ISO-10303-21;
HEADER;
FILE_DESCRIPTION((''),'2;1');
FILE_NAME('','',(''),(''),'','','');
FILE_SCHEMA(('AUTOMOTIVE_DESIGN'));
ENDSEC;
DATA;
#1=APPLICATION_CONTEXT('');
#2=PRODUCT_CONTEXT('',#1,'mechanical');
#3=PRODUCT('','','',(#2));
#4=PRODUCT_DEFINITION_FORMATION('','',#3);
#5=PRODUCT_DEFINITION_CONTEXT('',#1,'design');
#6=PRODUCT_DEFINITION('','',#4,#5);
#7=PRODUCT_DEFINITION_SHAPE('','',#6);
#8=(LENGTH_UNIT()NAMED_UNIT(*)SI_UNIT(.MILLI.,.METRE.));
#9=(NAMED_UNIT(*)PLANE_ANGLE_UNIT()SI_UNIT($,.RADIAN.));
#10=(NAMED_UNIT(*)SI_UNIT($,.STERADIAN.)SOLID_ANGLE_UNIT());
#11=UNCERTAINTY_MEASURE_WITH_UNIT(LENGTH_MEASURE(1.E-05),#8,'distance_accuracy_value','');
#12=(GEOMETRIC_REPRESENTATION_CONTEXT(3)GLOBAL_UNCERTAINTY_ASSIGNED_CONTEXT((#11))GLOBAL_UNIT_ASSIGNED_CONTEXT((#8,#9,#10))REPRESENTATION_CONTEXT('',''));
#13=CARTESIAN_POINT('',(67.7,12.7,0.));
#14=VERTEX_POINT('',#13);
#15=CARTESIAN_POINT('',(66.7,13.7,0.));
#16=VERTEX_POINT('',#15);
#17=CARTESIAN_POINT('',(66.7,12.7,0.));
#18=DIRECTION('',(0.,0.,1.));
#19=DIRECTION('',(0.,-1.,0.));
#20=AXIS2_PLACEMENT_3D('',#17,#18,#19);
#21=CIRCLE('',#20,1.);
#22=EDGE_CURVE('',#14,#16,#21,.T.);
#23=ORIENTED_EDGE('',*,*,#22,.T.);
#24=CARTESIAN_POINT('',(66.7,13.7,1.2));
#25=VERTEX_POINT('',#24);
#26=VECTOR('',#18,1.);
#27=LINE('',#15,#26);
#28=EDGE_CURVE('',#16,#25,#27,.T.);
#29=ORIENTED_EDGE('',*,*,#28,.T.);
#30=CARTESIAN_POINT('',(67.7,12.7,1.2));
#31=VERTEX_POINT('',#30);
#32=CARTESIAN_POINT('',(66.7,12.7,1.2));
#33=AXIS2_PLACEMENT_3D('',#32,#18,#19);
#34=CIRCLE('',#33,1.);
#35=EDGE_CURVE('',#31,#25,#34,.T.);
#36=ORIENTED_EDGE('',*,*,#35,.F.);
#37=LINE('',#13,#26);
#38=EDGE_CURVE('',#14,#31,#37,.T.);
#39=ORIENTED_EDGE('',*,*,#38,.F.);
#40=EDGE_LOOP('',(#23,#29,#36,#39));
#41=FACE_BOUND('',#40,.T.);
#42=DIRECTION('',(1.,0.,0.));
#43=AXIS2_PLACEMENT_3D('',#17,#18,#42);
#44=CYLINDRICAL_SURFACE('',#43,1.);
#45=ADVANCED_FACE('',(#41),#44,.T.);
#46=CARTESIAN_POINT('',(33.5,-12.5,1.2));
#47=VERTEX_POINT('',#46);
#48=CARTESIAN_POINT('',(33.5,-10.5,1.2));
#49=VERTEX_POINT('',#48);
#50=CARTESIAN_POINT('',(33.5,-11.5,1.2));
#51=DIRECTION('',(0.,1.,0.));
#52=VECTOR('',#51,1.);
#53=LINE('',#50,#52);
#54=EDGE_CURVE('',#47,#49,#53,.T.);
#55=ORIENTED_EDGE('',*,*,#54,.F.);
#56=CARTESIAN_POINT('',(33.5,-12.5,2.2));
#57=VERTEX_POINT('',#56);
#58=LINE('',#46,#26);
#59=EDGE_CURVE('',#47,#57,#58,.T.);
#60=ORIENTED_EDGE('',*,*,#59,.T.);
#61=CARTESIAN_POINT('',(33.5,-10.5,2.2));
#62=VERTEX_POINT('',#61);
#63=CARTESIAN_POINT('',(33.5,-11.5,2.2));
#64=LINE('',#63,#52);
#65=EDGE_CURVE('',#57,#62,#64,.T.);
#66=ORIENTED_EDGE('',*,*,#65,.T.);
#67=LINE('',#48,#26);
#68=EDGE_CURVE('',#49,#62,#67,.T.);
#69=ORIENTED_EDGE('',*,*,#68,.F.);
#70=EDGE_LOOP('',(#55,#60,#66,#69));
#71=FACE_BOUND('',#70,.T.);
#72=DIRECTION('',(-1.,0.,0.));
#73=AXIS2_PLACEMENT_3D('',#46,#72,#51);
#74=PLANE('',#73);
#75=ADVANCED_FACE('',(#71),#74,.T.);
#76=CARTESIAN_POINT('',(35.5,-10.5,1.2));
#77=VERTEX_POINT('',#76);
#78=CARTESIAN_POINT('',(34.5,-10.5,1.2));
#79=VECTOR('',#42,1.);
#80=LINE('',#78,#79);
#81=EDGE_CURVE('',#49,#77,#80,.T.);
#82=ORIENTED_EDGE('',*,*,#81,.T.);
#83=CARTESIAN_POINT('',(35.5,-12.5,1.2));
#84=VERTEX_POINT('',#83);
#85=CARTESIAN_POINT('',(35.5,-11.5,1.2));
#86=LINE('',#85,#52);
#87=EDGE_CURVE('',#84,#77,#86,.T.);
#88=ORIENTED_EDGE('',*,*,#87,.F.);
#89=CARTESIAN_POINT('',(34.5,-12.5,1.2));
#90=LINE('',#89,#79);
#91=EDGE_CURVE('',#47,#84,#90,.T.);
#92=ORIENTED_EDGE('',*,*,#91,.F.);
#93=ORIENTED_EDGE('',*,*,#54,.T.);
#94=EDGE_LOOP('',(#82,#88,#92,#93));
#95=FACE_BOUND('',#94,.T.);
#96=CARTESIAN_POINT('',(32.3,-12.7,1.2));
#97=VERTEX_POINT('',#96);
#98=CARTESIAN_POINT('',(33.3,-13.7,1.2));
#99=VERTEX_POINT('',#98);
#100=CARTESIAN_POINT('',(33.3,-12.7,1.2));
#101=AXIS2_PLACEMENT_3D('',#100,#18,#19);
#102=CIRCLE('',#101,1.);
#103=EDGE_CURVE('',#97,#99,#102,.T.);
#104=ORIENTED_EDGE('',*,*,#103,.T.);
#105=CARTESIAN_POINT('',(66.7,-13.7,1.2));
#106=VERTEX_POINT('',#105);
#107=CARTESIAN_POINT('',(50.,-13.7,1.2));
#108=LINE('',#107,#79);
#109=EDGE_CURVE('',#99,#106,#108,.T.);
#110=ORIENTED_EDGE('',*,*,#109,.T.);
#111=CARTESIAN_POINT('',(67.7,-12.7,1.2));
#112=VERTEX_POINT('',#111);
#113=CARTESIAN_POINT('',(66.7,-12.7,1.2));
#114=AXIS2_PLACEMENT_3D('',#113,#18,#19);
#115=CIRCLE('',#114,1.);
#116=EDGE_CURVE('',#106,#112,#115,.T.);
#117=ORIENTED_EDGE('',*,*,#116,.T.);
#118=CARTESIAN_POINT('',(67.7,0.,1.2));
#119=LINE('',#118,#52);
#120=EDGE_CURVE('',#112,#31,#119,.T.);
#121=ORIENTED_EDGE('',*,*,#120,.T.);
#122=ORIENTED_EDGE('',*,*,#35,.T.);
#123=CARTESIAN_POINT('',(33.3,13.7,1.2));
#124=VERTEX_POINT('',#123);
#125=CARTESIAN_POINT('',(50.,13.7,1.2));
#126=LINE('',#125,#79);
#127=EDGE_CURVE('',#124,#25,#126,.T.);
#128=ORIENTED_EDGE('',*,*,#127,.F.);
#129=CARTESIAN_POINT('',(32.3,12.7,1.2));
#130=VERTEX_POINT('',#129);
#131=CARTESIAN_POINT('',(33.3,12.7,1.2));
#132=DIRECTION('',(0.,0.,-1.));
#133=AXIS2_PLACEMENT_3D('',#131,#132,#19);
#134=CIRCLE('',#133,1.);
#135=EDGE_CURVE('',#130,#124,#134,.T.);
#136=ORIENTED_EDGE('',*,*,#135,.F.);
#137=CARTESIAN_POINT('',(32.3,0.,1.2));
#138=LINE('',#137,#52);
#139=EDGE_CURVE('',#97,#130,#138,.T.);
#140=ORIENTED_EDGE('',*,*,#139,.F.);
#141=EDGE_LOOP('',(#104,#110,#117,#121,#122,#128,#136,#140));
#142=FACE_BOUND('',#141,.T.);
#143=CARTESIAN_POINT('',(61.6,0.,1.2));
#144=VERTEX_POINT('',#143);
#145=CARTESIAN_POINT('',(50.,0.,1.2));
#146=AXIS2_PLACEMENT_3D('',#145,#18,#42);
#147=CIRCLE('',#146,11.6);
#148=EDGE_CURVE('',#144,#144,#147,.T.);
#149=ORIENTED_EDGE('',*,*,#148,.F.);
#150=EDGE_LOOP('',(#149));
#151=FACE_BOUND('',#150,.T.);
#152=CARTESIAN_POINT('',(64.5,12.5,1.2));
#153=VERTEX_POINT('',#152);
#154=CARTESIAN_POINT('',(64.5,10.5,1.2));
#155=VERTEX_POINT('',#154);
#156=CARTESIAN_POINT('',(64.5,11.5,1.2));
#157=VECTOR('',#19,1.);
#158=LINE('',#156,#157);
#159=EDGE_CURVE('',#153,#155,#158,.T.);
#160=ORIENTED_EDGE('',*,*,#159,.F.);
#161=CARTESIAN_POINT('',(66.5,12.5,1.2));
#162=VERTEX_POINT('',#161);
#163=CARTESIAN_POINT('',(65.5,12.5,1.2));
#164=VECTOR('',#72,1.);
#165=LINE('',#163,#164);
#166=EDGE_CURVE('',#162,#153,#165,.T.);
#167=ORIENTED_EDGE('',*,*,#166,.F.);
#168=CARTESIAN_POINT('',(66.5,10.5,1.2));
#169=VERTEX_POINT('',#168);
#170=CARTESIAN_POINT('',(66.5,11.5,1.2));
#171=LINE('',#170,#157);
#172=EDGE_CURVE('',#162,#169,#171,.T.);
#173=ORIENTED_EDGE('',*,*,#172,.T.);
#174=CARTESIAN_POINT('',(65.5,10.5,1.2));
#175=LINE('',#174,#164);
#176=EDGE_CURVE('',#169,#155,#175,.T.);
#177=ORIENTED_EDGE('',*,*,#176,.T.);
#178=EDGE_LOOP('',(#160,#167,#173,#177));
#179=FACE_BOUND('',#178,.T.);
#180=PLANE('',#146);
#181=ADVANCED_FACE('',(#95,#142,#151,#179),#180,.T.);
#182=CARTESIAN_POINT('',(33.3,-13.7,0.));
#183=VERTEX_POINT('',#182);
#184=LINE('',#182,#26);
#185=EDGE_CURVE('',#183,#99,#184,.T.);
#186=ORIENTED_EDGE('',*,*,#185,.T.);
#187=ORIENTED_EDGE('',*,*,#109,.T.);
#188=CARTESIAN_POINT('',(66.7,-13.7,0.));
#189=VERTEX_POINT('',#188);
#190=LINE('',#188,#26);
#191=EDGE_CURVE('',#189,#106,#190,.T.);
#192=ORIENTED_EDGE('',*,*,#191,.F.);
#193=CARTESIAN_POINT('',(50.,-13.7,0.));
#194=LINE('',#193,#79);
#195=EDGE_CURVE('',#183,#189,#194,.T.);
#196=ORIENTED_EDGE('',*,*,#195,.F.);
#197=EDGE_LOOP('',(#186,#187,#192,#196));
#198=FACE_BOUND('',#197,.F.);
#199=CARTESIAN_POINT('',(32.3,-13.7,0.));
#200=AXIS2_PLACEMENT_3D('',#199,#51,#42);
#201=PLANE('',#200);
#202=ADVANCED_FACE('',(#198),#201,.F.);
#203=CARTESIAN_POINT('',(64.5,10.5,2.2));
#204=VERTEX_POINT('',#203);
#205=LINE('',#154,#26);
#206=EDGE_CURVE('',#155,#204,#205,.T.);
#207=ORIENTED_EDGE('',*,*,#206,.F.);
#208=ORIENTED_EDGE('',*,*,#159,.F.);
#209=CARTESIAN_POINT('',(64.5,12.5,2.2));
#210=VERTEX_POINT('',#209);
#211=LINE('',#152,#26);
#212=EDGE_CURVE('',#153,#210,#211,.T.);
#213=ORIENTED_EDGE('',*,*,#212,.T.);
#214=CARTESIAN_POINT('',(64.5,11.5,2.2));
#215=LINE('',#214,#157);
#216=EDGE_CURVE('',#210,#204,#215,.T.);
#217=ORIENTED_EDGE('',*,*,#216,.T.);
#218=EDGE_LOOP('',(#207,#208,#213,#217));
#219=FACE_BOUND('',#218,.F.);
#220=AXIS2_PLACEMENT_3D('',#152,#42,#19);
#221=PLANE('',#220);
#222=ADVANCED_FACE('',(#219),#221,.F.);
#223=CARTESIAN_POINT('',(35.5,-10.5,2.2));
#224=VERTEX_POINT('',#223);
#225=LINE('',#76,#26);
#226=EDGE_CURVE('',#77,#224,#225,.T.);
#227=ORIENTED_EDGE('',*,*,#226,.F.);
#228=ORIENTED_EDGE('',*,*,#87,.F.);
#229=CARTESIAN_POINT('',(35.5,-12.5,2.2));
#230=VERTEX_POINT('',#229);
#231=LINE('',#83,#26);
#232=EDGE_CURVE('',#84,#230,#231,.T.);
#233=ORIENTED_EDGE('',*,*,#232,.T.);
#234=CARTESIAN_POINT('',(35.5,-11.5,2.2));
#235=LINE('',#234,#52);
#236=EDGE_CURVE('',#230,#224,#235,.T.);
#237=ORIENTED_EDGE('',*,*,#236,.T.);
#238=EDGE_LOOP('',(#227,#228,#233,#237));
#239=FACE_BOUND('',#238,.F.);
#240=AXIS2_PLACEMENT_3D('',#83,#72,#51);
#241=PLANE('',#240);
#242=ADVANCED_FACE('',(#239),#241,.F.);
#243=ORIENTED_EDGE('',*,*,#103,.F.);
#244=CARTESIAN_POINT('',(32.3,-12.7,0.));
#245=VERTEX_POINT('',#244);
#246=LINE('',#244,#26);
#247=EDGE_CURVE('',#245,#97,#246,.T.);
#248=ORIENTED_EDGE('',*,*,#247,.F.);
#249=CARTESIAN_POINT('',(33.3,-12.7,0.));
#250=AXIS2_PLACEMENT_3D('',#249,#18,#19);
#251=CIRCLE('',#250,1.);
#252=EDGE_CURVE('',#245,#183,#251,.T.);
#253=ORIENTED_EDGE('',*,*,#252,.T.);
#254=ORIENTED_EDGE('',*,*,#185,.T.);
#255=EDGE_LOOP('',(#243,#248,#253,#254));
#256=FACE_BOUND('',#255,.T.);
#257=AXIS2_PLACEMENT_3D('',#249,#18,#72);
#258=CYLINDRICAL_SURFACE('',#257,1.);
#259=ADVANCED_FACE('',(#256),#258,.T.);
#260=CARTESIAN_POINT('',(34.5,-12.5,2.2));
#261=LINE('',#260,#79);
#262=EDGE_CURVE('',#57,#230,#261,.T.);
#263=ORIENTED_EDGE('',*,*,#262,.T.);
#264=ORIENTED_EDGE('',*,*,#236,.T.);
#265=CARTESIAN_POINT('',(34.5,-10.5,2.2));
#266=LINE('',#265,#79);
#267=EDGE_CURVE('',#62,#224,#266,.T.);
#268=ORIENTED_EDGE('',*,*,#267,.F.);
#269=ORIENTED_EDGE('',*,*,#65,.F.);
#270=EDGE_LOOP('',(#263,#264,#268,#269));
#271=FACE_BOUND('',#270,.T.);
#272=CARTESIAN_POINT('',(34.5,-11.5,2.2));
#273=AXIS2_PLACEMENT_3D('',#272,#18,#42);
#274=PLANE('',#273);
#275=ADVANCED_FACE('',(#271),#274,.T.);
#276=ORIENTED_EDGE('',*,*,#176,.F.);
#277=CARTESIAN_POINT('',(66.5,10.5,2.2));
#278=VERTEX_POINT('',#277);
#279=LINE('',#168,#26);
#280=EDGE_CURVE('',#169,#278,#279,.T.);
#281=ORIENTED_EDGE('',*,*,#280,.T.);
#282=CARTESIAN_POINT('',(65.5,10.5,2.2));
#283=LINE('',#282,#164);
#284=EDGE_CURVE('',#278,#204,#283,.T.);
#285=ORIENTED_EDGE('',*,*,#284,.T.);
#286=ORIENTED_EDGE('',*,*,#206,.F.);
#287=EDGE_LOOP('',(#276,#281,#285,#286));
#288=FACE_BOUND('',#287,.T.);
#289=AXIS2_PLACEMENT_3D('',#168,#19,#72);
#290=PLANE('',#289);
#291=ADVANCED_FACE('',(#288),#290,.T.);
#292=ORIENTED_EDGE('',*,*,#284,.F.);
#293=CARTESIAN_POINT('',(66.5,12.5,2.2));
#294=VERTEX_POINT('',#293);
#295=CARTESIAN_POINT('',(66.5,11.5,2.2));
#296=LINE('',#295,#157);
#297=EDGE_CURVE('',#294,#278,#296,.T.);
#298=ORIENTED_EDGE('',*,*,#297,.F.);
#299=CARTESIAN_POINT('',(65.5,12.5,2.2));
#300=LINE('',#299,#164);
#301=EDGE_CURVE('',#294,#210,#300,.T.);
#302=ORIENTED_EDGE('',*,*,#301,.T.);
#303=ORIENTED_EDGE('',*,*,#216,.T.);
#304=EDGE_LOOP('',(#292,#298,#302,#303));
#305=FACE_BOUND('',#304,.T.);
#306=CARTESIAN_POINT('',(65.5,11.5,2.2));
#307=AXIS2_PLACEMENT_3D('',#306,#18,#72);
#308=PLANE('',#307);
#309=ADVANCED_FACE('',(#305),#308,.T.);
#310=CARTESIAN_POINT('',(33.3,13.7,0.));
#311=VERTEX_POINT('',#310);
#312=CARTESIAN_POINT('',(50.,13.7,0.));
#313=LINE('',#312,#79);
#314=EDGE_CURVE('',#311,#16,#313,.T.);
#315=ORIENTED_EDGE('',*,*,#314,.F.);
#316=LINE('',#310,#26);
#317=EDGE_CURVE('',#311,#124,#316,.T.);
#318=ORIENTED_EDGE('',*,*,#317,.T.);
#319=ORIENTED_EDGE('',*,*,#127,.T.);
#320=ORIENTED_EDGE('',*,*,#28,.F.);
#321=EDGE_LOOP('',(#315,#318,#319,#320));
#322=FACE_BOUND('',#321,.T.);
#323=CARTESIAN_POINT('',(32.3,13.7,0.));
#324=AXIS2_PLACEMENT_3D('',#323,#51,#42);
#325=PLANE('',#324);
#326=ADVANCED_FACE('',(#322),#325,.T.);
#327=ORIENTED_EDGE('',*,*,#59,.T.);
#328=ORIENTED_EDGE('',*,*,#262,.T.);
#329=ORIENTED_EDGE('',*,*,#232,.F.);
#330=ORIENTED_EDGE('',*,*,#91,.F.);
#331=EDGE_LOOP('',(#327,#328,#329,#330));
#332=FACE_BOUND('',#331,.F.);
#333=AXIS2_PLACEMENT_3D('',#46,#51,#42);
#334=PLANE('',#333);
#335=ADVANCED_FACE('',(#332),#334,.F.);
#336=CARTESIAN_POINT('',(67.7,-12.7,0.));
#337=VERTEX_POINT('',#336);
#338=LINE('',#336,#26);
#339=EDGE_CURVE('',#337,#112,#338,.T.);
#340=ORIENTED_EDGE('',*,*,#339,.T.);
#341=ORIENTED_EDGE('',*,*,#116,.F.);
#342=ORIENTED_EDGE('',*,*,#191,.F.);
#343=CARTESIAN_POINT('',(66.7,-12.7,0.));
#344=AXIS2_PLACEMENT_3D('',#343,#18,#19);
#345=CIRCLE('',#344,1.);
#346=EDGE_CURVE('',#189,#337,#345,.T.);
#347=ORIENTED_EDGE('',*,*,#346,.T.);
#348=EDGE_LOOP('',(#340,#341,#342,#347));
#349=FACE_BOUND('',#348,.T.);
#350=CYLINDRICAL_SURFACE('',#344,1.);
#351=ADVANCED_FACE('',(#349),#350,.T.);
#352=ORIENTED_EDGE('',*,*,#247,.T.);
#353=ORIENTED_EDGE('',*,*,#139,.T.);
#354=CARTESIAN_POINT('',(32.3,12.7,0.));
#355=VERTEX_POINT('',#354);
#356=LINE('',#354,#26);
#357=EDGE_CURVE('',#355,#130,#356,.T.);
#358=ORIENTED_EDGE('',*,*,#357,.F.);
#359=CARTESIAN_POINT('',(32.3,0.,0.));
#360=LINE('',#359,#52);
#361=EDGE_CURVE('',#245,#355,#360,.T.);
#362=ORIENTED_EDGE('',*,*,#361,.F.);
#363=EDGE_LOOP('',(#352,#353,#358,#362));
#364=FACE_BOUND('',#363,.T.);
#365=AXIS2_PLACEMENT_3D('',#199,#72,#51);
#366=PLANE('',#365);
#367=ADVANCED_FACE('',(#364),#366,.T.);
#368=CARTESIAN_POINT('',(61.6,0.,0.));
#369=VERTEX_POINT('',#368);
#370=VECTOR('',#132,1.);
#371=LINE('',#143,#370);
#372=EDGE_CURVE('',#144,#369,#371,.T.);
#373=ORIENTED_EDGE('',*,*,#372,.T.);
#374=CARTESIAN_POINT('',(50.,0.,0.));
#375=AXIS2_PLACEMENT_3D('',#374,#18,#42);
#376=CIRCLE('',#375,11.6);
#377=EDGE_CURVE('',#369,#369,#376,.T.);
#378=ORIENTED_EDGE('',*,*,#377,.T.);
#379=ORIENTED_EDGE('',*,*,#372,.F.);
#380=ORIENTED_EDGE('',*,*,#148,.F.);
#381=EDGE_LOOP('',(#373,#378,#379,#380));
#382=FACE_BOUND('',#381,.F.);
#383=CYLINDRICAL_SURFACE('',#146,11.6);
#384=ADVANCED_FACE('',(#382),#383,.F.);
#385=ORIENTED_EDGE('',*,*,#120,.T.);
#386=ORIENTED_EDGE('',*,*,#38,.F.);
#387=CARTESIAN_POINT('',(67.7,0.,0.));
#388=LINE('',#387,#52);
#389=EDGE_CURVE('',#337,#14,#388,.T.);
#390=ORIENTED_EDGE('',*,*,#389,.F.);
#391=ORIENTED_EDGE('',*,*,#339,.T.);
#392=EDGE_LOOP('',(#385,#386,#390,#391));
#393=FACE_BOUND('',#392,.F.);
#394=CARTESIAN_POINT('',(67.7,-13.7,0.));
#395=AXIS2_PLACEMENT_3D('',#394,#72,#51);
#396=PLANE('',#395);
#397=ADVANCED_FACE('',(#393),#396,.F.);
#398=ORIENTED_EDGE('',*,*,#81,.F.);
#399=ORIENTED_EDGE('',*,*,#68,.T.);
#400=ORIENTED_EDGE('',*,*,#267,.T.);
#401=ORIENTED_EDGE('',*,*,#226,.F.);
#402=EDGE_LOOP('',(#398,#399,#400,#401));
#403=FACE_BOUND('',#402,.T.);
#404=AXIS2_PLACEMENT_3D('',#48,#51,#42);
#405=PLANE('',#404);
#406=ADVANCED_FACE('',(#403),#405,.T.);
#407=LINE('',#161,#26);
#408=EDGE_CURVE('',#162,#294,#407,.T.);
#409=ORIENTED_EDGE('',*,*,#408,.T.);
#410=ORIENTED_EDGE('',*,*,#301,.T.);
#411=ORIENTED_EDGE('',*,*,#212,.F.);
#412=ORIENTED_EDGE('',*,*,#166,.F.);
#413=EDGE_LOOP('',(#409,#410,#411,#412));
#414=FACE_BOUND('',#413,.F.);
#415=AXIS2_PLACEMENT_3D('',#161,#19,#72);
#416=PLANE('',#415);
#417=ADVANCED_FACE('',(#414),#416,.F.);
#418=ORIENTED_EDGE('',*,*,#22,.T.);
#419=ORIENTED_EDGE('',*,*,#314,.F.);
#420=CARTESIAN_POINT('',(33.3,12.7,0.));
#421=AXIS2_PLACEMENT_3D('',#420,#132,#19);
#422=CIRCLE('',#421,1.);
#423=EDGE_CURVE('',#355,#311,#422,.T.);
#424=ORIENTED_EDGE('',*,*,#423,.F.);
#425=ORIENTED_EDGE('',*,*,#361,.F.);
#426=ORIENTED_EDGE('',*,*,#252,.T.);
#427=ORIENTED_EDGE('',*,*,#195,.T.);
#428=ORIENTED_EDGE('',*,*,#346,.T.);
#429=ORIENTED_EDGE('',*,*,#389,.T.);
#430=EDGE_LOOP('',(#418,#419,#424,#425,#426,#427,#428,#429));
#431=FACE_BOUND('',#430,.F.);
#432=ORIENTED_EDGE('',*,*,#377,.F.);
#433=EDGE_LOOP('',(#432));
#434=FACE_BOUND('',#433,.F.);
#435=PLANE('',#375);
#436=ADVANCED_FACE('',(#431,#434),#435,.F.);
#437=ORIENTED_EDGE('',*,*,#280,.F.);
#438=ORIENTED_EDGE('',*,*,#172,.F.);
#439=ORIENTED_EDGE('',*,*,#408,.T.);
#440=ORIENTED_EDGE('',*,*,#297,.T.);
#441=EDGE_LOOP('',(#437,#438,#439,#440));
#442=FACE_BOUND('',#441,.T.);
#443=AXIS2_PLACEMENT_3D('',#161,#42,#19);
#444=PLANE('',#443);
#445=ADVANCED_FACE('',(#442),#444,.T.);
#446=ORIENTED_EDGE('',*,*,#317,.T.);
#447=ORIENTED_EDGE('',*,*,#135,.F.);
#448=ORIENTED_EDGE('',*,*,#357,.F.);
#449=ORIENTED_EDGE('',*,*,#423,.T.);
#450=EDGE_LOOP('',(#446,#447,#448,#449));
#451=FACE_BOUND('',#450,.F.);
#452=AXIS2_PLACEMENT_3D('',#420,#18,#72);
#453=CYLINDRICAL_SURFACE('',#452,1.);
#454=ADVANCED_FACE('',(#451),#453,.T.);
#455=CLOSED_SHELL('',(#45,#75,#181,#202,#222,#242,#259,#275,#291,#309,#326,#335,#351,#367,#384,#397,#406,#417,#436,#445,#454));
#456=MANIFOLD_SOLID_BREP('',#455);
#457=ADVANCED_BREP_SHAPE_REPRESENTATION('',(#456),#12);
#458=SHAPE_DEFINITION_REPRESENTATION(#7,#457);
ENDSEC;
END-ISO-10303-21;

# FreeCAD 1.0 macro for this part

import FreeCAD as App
import Part
import Sketcher
from FreeCAD import Vector


def edges_at(feature, points):
    """Names of the edges that pass closest to the given points."""
    edges = feature.Shape.Edges
    near = lambda p: min(range(len(edges)), key=lambda i: edges[i].distToShape(Part.Vertex(*p))[0])
    return sorted({f"Edge{near(p) + 1}" for p in points})


def add_polygon(sketch, points):
    """Adds a closed chain of lines whose ends are joined by coincident constraints."""
    first, n = sketch.GeometryCount, len(points)
    for a, b in zip(points, points[1:] + points[:1]):
        sketch.addGeometry(Part.LineSegment(App.Vector(*a, 0), App.Vector(*b, 0)), False)
    for i in range(n):
        sketch.addConstraint(Sketcher.Constraint("Coincident", first + i, 2, first + (i + 1) % n, 1))

doc = App.newDocument("Part")
body = doc.addObject("PartDesign::Body", "Body")

sketch1 = body.newObject("Sketcher::SketchObject", "Sketch")
sketch1.AttachmentSupport = (doc.getObject("XY_Plane"), [""])
sketch1.MapMode = "FlatFace"
add_polygon(sketch1, [(-17.7, 13.7), (-17.7, -13.7), (17.7, -13.7), (17.7, 13.7)])
sketch1.addConstraint([
    Sketcher.Constraint("Vertical", 0),
    Sketcher.Constraint("Horizontal", 1),
    Sketcher.Constraint("Vertical", 2),
    Sketcher.Constraint("Horizontal", 3),
    Sketcher.Constraint("Symmetric", 0, 2, 2, 2, -1, 1),
    Sketcher.Constraint("DistanceX", 1, 1, 1, 2, 35.4),
    Sketcher.Constraint("DistanceY", 0, 2, 0, 1, 27.4),
])
pad1 = body.newObject("PartDesign::Pad", "Pad")
pad1.Profile = sketch1
pad1.Length = 1.2
doc.recompute()

fillet = body.newObject("PartDesign::Fillet", "Fillet")
fillet.Base = (pad1, edges_at(pad1, [
    (-17.7, -13.7, 0.6),
    (17.7, -13.7, 0.6),
    (17.7, 13.7, 0.6),
    (-17.7, 13.7, 0.6),
]))
fillet.Radius = 1

sketch2 = body.newObject("Sketcher::SketchObject", "Sketch001")
sketch2.AttachmentSupport = (doc.getObject("XY_Plane"), [""])
sketch2.MapMode = "FlatFace"
sketch2.AttachmentOffset = App.Placement(Vector(0, 0, 1.2), App.Rotation())
sketch2.addGeometry(Part.Circle(Vector(0, 0, 0), Vector(0, 0, 1), 11.6), False)
sketch2.addConstraint([
    Sketcher.Constraint("Coincident", 0, 3, -1, 1),
    Sketcher.Constraint("Diameter", 0, 23.2),
])
pocket1 = body.newObject("PartDesign::Pocket", "Pocket")
pocket1.Profile = sketch2
pocket1.Type = "ThroughAll"

sketch3 = body.newObject("Sketcher::SketchObject", "Sketch002")
sketch3.AttachmentSupport = (doc.getObject("XY_Plane"), [""])
sketch3.MapMode = "FlatFace"
sketch3.AttachmentOffset = App.Placement(Vector(0, 0, 1.2), App.Rotation())
add_polygon(sketch3, [(-16.5, -10.5), (-16.5, -12.5), (-14.5, -12.5), (-14.5, -10.5)])
sketch3.addConstraint([
    Sketcher.Constraint("Vertical", 0),
    Sketcher.Constraint("Horizontal", 1),
    Sketcher.Constraint("Vertical", 2),
    Sketcher.Constraint("Horizontal", 3),
    Sketcher.Constraint("Equal", 3, 0),
    Sketcher.Constraint("DistanceX", 1, 1, 1, 2, 2.0),
    Sketcher.Constraint("DistanceX", 0, 2, -1, 1, 16.5),
    Sketcher.Constraint("DistanceY", 0, 2, -1, 1, 12.5),
])
pad2 = body.newObject("PartDesign::Pad", "Pad001")
pad2.Profile = sketch3
pad2.Length = 1
doc.recompute()

polarpattern = body.newObject("PartDesign::PolarPattern", "PolarPattern")
polarpattern.Originals = [pad2]
polarpattern.Axis = (doc.getObject("Z_Axis"), [""])
polarpattern.Angle = 360
polarpattern.Occurrences = 2
body.Tip = polarpattern
body2 = doc.addObject("PartDesign::Body", "Body001")
doc.recompute()

body.Placement = App.Placement(Vector(50, 0, 0), App.Rotation(Vector(0, 0, 1), 0))
boolean = body2.newObject("PartDesign::Boolean", "Boolean")
boolean.Type = "Fuse"
boolean.addObjects([body])

doc.recompute()
